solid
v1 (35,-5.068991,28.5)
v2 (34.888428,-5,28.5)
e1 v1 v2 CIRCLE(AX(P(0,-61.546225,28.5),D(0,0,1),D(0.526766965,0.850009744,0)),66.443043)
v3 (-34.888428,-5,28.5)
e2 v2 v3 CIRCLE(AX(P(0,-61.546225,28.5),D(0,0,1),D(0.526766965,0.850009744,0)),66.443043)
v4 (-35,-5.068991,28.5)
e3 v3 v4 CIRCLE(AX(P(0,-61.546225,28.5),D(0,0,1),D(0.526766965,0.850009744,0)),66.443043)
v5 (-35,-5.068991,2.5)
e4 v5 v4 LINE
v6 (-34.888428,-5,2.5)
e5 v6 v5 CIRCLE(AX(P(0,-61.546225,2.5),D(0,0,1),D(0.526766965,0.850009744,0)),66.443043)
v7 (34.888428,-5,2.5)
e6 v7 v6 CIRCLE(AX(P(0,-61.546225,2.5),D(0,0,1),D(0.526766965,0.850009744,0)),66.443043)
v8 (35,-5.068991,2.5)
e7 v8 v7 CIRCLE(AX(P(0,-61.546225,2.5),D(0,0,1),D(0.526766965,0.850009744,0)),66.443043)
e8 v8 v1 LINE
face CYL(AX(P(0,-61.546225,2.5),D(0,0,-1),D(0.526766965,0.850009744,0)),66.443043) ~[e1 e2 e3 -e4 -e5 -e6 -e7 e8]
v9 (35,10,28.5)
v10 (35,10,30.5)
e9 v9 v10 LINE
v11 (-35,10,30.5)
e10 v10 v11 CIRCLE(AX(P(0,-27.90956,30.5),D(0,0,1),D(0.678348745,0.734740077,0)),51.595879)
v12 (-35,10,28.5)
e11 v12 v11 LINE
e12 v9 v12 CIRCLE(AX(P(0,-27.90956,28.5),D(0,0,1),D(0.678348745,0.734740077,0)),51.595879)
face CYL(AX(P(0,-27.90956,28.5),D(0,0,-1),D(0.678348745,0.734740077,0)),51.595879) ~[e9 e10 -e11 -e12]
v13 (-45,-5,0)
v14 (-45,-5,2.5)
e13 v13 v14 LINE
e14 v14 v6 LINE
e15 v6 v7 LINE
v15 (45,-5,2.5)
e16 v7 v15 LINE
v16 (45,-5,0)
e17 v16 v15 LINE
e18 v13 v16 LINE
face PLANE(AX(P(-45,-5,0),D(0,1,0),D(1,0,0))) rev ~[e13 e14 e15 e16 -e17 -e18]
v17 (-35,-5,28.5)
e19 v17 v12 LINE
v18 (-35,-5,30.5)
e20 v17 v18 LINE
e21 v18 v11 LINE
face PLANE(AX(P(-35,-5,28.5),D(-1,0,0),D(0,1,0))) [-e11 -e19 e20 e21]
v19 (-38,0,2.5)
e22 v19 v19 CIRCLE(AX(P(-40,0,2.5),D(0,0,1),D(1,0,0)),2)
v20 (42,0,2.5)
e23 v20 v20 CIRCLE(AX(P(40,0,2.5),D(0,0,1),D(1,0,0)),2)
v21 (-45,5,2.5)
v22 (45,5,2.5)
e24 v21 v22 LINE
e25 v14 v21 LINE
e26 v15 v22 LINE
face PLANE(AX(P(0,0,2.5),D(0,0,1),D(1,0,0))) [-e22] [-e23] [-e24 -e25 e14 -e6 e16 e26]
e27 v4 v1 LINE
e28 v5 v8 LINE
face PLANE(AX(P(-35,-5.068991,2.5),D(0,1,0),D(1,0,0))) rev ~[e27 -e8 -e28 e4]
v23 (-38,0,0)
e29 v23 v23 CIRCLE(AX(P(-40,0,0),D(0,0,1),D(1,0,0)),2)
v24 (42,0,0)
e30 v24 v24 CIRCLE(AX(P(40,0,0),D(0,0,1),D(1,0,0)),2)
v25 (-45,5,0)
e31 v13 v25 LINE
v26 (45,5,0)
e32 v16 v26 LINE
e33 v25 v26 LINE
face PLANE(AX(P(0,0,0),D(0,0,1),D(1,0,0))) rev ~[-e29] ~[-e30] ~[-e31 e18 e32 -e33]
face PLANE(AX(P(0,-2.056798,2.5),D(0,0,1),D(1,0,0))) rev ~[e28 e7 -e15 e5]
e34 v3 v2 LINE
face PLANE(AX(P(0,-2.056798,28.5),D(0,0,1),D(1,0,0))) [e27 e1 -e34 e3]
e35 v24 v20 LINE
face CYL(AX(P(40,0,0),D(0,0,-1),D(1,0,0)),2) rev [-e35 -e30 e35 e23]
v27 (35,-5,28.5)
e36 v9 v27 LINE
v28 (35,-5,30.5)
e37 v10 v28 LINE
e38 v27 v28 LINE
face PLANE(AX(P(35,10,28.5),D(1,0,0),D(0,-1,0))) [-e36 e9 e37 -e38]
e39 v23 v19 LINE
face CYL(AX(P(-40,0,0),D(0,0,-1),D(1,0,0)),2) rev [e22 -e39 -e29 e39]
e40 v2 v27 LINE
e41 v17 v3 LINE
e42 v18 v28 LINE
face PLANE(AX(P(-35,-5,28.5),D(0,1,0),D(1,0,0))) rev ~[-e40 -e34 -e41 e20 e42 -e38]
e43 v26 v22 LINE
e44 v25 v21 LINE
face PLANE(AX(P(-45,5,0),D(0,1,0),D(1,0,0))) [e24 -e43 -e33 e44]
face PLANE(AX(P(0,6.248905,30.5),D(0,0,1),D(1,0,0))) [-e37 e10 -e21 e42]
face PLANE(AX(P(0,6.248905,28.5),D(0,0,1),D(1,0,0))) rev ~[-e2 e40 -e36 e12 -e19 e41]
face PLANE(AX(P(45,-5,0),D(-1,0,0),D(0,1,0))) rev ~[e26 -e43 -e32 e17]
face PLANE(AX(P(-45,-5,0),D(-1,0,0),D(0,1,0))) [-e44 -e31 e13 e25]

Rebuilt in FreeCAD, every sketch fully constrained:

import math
import FreeCAD as App
import Part
import Sketcher


def add_polygon(sketch, points):
    """Adds a closed chain of lines whose ends are joined by coincident constraints."""
    first, n = sketch.GeometryCount, len(points)
    for a, b in zip(points, points[1:] + points[:1]):
        sketch.addGeometry(Part.LineSegment(App.Vector(*a, 0), App.Vector(*b, 0)), False)
    for i in range(n):
        sketch.addConstraint(Sketcher.Constraint("Coincident", first + i, 2, first + (i + 1) % n, 1))

doc = App.newDocument("Part")
body = doc.addObject("PartDesign::Body", "Body")

sketch1 = body.newObject("Sketcher::SketchObject", "Sketch")
sketch1.AttachmentSupport = (doc.getObject("XY_Plane"), [""])
sketch1.MapMode = "FlatFace"
add_polygon(sketch1, [(-45, 5), (-45, -5), (45, -5), (45, 5)])
sketch1.addGeometry(Part.Circle(App.Vector(-40, 0, 0), App.Vector(0, 0, 1), 2), False)
sketch1.addGeometry(Part.Circle(App.Vector(40, 0, 0), App.Vector(0, 0, 1), 2), False)
sketch1.addConstraint([
    Sketcher.Constraint("Vertical", 0),
    Sketcher.Constraint("Horizontal", 1),
    Sketcher.Constraint("Vertical", 2),
    Sketcher.Constraint("Horizontal", 3),
    Sketcher.Constraint("Equal", 4, 5),
    Sketcher.Constraint("Symmetric", 4, 3, 5, 3, -1, 1),
    Sketcher.Constraint("Symmetric", 0, 2, 2, 2, -1, 1),
    Sketcher.Constraint("PointOnObject", 4, 3, -1),
    Sketcher.Constraint("Diameter", 4, 4.0),
    Sketcher.Constraint("DistanceX", 1, 1, 1, 2, 90.0),
    Sketcher.Constraint("DistanceY", 0, 2, 0, 1, 10.0),
    Sketcher.Constraint("DistanceX", 4, 3, -1, 1, 40.0),
])
pad1 = body.newObject("PartDesign::Pad", "Pad")
pad1.Profile = sketch1
pad1.Length = 2.5

sketch2 = body.newObject("Sketcher::SketchObject", "Sketch001")
sketch2.AttachmentSupport = (doc.getObject("XY_Plane"), [""])
sketch2.MapMode = "FlatFace"
sketch2.AttachmentOffset = App.Placement(App.Vector(0, 0, 2.5), App.Rotation())
sketch2.addGeometry([
    Part.ArcOfCircle(Part.Circle(App.Vector(0, -61.546225, 0), App.Vector(0, 0, 1), 66.443043), math.radians(58.212729), math.radians(121.787271)),
    Part.LineSegment(App.Vector(-35, -5.068991, 0), App.Vector(35, -5.068991, 0)),
], False)
sketch2.addConstraint([
    Sketcher.Constraint("Coincident", 0, 1, 1, 2),
    Sketcher.Constraint("Coincident", 1, 1, 0, 2),
    Sketcher.Constraint("Horizontal", 1),
    Sketcher.Constraint("PointOnObject", 0, 3, -2),
    Sketcher.Constraint("DistanceX", 1, 1, 1, 2, 70.0),
    Sketcher.Constraint("Radius", 0, 66.443043),
    Sketcher.Constraint("DistanceY", 0, 1, -1, 1, 5.068991),
])
pad2 = body.newObject("PartDesign::Pad", "Pad001")
pad2.Profile = sketch2
pad2.Length = 26

sketch3 = body.newObject("Sketcher::SketchObject", "Sketch002")
sketch3.AttachmentSupport = (doc.getObject("XY_Plane"), [""])
sketch3.MapMode = "FlatFace"
sketch3.AttachmentOffset = App.Placement(App.Vector(0, 0, 28.5), App.Rotation())
sketch3.addGeometry([
    Part.ArcOfCircle(Part.Circle(App.Vector(0, -27.90956, 0), App.Vector(0, 0, 1), 51.595879), math.radians(47.285257), math.radians(132.714743)),
    Part.LineSegment(App.Vector(-35, 10, 0), App.Vector(-35, -5, 0)),
    Part.LineSegment(App.Vector(-35, -5, 0), App.Vector(35, -5, 0)),
    Part.LineSegment(App.Vector(35, -5, 0), App.Vector(35, 10, 0)),
], False)
sketch3.addConstraint([
    Sketcher.Constraint("Coincident", 0, 2, 1, 1),
    Sketcher.Constraint("Coincident", 1, 2, 2, 1),
    Sketcher.Constraint("Coincident", 2, 2, 3, 1),
    Sketcher.Constraint("Coincident", 3, 2, 0, 1),
    Sketcher.Constraint("Vertical", 1),
    Sketcher.Constraint("Horizontal", 2),
    Sketcher.Constraint("Vertical", 3),
    Sketcher.Constraint("Symmetric", 0, 2, 3, 2, -2),
    Sketcher.Constraint("DistanceX", 2, 1, 2, 2, 70.0),
    Sketcher.Constraint("DistanceY", 1, 2, 1, 1, 15.0),
    Sketcher.Constraint("DistanceY", -1, 1, 0, 2, 10.0),
    Sketcher.Constraint("Radius", 0, 51.595879),
])
pad3 = body.newObject("PartDesign::Pad", "Pad002")
pad3.Profile = sketch3
pad3.Length = 2

doc.recompute()
